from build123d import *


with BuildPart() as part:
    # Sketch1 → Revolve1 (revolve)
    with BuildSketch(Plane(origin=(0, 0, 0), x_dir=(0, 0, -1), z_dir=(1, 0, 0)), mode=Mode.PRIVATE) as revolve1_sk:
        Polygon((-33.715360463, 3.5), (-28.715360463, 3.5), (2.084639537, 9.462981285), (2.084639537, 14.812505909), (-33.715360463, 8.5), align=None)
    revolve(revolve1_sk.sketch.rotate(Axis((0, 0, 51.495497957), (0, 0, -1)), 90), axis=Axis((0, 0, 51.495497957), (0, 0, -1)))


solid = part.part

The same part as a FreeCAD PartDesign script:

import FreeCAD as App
import Part
import Sketcher

V = App.Vector
Q = App.Units.Quantity

doc = App.newDocument("Part")
body = doc.addObject("PartDesign::Body", "Body")

sketch1 = body.newObject("Sketcher::SketchObject", "Sketch")
sketch1.AttachmentSupport = (doc.getObject("YZ_Plane"), [""])
sketch1.MapMode = "FlatFace"
sketch1.addGeometry([
    Part.LineSegment(V(4, 34, 0), V(4, 29, 0)),
    Part.LineSegment(V(4, 29, 0), V(9, -2, 0)),
    Part.LineSegment(V(9, -2, 0), V(15, -2, 0)),
    Part.LineSegment(V(15, -2, 0), V(8, 34, 0)),
    Part.LineSegment(V(8, 34, 0), V(4, 34, 0)),
], False)
sketch1.addConstraint([
    Sketcher.Constraint("Coincident", 0, 2, 1, 1),
    Sketcher.Constraint("Coincident", 1, 2, 2, 1),
    Sketcher.Constraint("Coincident", 2, 2, 3, 1),
    Sketcher.Constraint("Coincident", 3, 2, 4, 1),
    Sketcher.Constraint("Coincident", 4, 2, 0, 1),
    Sketcher.Constraint("Vertical", 0),
    Sketcher.Constraint("Horizontal", 2),
    Sketcher.Constraint("Horizontal", 4),
    Sketcher.Constraint("Equal", 4, 0),
    Sketcher.Constraint("DistanceX", 4, 2, 4, 1, 5.0),
    Sketcher.Constraint("Angle", 3, Q("100 deg")),
    Sketcher.Constraint("DistanceX", -1, 1, 0, 2, 3.5),
    Sketcher.Constraint("DistanceY", 1, 2, 0, 2, 30.8),
    Sketcher.Constraint("DistanceX", 2, 1, 2, 2, 5.349525),
    Sketcher.Constraint("DistanceY", -1, 1, 0, 2, 28.71536),
])
revolution = body.newObject("PartDesign::Revolution", "Revolution")
revolution.Profile = sketch1
revolution.ReferenceAxis = (sketch1, ["V_Axis"])
revolution.Angle = 360

doc.recompute()
